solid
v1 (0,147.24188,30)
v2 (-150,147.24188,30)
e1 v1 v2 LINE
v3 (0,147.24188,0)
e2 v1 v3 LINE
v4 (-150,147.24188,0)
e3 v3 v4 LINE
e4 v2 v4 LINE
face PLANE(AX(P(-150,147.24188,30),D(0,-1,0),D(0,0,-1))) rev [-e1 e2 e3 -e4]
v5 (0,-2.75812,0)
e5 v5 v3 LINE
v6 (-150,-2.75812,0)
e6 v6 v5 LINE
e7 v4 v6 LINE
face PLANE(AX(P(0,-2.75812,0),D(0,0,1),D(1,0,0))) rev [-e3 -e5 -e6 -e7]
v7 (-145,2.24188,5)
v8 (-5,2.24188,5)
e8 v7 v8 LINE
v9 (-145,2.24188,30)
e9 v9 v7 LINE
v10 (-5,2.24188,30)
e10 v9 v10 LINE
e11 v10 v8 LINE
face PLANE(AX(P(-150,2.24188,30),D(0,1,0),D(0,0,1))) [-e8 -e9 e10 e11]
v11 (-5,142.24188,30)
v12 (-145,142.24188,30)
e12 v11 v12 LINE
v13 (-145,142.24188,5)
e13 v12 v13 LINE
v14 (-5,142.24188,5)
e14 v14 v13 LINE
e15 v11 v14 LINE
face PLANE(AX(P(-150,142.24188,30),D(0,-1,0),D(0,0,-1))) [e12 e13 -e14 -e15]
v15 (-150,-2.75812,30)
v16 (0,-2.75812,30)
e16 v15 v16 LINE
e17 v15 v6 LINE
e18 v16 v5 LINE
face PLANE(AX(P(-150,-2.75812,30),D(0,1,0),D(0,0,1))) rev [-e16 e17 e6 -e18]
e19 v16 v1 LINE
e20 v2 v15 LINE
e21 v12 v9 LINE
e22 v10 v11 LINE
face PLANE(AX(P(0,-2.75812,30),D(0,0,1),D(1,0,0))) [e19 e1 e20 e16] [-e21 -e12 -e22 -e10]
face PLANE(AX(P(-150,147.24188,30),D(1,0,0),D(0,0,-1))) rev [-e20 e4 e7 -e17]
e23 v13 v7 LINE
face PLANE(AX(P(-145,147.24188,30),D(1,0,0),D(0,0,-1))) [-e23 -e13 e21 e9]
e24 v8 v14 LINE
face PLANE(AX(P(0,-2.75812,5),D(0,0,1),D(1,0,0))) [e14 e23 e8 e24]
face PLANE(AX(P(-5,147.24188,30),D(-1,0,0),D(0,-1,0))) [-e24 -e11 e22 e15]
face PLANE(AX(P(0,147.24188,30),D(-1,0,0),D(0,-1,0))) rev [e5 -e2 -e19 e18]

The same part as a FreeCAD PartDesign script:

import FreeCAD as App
import Part
import Sketcher
from FreeCAD import Vector
Q = App.Units.Quantity


def faces_at(feature, points):
    """Names of the faces that lie closest to the given points."""
    faces = feature.Shape.Faces
    near = lambda p: min(range(len(faces)), key=lambda i: faces[i].distToShape(Part.Vertex(*p))[0])
    return sorted({f"Face{near(p) + 1}" for p in points})


def add_polygon(sketch, points):
    """Adds a closed chain of lines whose ends are joined by coincident constraints."""
    first, n = sketch.GeometryCount, len(points)
    for a, b in zip(points, points[1:] + points[:1]):
        sketch.addGeometry(Part.LineSegment(App.Vector(*a, 0), App.Vector(*b, 0)), False)
    for i in range(n):
        sketch.addConstraint(Sketcher.Constraint("Coincident", first + i, 2, first + (i + 1) % n, 1))

doc = App.newDocument("Part")
params = doc.addObject("Spreadsheet::Sheet", "Params")
for row, (alias, value) in enumerate([
    ("sketch1_width", "150 mm"),
    ("pad1_length", "30 mm"),
    ("thickness_wall", "5 mm"),
], start=1):
    params.set(f"A{row}", alias)
    params.set(f"B{row}", "=" + value)
    params.setAlias(f"B{row}", alias)

body = doc.addObject("PartDesign::Body", "Body")

sketch1 = body.newObject("Sketcher::SketchObject", "Sketch")
sketch1.AttachmentSupport = (doc.getObject("XY_Plane"), [""])
sketch1.MapMode = "FlatFace"
add_polygon(sketch1, [(-150, 147.24188), (-150, -2.75812), (0, -2.75812), (0, 147.24188)])
sketch1.addConstraint([
    Sketcher.Constraint("Vertical", 0),
    Sketcher.Constraint("Horizontal", 1),
    Sketcher.Constraint("Vertical", 2),
    Sketcher.Constraint("Horizontal", 3),
    Sketcher.Constraint("PointOnObject", 1, 2, -2),
    Sketcher.Constraint("Equal", 3, 0),
    Sketcher.Constraint("DistanceX", 1, 1, 1, 2, Q("150 mm")),
    Sketcher.Constraint("DistanceY", 0, 2, -1, 1, Q("2.75812 mm")),
])
sketch1.setExpression("Constraints[10]", "Params.sketch1_width")
pad1 = body.newObject("PartDesign::Pad", "Pad")
pad1.Profile = sketch1
pad1.setExpression("Length", "Params.pad1_length")
doc.recompute()

thickness = body.newObject("PartDesign::Thickness", "Thickness")
thickness.Base = (pad1, faces_at(pad1, [(-75, 72.242, 30)]))
thickness.setExpression("Value", "Params.thickness_wall")
thickness.Reversed = True
thickness.Join = "Intersection"

doc.recompute()
